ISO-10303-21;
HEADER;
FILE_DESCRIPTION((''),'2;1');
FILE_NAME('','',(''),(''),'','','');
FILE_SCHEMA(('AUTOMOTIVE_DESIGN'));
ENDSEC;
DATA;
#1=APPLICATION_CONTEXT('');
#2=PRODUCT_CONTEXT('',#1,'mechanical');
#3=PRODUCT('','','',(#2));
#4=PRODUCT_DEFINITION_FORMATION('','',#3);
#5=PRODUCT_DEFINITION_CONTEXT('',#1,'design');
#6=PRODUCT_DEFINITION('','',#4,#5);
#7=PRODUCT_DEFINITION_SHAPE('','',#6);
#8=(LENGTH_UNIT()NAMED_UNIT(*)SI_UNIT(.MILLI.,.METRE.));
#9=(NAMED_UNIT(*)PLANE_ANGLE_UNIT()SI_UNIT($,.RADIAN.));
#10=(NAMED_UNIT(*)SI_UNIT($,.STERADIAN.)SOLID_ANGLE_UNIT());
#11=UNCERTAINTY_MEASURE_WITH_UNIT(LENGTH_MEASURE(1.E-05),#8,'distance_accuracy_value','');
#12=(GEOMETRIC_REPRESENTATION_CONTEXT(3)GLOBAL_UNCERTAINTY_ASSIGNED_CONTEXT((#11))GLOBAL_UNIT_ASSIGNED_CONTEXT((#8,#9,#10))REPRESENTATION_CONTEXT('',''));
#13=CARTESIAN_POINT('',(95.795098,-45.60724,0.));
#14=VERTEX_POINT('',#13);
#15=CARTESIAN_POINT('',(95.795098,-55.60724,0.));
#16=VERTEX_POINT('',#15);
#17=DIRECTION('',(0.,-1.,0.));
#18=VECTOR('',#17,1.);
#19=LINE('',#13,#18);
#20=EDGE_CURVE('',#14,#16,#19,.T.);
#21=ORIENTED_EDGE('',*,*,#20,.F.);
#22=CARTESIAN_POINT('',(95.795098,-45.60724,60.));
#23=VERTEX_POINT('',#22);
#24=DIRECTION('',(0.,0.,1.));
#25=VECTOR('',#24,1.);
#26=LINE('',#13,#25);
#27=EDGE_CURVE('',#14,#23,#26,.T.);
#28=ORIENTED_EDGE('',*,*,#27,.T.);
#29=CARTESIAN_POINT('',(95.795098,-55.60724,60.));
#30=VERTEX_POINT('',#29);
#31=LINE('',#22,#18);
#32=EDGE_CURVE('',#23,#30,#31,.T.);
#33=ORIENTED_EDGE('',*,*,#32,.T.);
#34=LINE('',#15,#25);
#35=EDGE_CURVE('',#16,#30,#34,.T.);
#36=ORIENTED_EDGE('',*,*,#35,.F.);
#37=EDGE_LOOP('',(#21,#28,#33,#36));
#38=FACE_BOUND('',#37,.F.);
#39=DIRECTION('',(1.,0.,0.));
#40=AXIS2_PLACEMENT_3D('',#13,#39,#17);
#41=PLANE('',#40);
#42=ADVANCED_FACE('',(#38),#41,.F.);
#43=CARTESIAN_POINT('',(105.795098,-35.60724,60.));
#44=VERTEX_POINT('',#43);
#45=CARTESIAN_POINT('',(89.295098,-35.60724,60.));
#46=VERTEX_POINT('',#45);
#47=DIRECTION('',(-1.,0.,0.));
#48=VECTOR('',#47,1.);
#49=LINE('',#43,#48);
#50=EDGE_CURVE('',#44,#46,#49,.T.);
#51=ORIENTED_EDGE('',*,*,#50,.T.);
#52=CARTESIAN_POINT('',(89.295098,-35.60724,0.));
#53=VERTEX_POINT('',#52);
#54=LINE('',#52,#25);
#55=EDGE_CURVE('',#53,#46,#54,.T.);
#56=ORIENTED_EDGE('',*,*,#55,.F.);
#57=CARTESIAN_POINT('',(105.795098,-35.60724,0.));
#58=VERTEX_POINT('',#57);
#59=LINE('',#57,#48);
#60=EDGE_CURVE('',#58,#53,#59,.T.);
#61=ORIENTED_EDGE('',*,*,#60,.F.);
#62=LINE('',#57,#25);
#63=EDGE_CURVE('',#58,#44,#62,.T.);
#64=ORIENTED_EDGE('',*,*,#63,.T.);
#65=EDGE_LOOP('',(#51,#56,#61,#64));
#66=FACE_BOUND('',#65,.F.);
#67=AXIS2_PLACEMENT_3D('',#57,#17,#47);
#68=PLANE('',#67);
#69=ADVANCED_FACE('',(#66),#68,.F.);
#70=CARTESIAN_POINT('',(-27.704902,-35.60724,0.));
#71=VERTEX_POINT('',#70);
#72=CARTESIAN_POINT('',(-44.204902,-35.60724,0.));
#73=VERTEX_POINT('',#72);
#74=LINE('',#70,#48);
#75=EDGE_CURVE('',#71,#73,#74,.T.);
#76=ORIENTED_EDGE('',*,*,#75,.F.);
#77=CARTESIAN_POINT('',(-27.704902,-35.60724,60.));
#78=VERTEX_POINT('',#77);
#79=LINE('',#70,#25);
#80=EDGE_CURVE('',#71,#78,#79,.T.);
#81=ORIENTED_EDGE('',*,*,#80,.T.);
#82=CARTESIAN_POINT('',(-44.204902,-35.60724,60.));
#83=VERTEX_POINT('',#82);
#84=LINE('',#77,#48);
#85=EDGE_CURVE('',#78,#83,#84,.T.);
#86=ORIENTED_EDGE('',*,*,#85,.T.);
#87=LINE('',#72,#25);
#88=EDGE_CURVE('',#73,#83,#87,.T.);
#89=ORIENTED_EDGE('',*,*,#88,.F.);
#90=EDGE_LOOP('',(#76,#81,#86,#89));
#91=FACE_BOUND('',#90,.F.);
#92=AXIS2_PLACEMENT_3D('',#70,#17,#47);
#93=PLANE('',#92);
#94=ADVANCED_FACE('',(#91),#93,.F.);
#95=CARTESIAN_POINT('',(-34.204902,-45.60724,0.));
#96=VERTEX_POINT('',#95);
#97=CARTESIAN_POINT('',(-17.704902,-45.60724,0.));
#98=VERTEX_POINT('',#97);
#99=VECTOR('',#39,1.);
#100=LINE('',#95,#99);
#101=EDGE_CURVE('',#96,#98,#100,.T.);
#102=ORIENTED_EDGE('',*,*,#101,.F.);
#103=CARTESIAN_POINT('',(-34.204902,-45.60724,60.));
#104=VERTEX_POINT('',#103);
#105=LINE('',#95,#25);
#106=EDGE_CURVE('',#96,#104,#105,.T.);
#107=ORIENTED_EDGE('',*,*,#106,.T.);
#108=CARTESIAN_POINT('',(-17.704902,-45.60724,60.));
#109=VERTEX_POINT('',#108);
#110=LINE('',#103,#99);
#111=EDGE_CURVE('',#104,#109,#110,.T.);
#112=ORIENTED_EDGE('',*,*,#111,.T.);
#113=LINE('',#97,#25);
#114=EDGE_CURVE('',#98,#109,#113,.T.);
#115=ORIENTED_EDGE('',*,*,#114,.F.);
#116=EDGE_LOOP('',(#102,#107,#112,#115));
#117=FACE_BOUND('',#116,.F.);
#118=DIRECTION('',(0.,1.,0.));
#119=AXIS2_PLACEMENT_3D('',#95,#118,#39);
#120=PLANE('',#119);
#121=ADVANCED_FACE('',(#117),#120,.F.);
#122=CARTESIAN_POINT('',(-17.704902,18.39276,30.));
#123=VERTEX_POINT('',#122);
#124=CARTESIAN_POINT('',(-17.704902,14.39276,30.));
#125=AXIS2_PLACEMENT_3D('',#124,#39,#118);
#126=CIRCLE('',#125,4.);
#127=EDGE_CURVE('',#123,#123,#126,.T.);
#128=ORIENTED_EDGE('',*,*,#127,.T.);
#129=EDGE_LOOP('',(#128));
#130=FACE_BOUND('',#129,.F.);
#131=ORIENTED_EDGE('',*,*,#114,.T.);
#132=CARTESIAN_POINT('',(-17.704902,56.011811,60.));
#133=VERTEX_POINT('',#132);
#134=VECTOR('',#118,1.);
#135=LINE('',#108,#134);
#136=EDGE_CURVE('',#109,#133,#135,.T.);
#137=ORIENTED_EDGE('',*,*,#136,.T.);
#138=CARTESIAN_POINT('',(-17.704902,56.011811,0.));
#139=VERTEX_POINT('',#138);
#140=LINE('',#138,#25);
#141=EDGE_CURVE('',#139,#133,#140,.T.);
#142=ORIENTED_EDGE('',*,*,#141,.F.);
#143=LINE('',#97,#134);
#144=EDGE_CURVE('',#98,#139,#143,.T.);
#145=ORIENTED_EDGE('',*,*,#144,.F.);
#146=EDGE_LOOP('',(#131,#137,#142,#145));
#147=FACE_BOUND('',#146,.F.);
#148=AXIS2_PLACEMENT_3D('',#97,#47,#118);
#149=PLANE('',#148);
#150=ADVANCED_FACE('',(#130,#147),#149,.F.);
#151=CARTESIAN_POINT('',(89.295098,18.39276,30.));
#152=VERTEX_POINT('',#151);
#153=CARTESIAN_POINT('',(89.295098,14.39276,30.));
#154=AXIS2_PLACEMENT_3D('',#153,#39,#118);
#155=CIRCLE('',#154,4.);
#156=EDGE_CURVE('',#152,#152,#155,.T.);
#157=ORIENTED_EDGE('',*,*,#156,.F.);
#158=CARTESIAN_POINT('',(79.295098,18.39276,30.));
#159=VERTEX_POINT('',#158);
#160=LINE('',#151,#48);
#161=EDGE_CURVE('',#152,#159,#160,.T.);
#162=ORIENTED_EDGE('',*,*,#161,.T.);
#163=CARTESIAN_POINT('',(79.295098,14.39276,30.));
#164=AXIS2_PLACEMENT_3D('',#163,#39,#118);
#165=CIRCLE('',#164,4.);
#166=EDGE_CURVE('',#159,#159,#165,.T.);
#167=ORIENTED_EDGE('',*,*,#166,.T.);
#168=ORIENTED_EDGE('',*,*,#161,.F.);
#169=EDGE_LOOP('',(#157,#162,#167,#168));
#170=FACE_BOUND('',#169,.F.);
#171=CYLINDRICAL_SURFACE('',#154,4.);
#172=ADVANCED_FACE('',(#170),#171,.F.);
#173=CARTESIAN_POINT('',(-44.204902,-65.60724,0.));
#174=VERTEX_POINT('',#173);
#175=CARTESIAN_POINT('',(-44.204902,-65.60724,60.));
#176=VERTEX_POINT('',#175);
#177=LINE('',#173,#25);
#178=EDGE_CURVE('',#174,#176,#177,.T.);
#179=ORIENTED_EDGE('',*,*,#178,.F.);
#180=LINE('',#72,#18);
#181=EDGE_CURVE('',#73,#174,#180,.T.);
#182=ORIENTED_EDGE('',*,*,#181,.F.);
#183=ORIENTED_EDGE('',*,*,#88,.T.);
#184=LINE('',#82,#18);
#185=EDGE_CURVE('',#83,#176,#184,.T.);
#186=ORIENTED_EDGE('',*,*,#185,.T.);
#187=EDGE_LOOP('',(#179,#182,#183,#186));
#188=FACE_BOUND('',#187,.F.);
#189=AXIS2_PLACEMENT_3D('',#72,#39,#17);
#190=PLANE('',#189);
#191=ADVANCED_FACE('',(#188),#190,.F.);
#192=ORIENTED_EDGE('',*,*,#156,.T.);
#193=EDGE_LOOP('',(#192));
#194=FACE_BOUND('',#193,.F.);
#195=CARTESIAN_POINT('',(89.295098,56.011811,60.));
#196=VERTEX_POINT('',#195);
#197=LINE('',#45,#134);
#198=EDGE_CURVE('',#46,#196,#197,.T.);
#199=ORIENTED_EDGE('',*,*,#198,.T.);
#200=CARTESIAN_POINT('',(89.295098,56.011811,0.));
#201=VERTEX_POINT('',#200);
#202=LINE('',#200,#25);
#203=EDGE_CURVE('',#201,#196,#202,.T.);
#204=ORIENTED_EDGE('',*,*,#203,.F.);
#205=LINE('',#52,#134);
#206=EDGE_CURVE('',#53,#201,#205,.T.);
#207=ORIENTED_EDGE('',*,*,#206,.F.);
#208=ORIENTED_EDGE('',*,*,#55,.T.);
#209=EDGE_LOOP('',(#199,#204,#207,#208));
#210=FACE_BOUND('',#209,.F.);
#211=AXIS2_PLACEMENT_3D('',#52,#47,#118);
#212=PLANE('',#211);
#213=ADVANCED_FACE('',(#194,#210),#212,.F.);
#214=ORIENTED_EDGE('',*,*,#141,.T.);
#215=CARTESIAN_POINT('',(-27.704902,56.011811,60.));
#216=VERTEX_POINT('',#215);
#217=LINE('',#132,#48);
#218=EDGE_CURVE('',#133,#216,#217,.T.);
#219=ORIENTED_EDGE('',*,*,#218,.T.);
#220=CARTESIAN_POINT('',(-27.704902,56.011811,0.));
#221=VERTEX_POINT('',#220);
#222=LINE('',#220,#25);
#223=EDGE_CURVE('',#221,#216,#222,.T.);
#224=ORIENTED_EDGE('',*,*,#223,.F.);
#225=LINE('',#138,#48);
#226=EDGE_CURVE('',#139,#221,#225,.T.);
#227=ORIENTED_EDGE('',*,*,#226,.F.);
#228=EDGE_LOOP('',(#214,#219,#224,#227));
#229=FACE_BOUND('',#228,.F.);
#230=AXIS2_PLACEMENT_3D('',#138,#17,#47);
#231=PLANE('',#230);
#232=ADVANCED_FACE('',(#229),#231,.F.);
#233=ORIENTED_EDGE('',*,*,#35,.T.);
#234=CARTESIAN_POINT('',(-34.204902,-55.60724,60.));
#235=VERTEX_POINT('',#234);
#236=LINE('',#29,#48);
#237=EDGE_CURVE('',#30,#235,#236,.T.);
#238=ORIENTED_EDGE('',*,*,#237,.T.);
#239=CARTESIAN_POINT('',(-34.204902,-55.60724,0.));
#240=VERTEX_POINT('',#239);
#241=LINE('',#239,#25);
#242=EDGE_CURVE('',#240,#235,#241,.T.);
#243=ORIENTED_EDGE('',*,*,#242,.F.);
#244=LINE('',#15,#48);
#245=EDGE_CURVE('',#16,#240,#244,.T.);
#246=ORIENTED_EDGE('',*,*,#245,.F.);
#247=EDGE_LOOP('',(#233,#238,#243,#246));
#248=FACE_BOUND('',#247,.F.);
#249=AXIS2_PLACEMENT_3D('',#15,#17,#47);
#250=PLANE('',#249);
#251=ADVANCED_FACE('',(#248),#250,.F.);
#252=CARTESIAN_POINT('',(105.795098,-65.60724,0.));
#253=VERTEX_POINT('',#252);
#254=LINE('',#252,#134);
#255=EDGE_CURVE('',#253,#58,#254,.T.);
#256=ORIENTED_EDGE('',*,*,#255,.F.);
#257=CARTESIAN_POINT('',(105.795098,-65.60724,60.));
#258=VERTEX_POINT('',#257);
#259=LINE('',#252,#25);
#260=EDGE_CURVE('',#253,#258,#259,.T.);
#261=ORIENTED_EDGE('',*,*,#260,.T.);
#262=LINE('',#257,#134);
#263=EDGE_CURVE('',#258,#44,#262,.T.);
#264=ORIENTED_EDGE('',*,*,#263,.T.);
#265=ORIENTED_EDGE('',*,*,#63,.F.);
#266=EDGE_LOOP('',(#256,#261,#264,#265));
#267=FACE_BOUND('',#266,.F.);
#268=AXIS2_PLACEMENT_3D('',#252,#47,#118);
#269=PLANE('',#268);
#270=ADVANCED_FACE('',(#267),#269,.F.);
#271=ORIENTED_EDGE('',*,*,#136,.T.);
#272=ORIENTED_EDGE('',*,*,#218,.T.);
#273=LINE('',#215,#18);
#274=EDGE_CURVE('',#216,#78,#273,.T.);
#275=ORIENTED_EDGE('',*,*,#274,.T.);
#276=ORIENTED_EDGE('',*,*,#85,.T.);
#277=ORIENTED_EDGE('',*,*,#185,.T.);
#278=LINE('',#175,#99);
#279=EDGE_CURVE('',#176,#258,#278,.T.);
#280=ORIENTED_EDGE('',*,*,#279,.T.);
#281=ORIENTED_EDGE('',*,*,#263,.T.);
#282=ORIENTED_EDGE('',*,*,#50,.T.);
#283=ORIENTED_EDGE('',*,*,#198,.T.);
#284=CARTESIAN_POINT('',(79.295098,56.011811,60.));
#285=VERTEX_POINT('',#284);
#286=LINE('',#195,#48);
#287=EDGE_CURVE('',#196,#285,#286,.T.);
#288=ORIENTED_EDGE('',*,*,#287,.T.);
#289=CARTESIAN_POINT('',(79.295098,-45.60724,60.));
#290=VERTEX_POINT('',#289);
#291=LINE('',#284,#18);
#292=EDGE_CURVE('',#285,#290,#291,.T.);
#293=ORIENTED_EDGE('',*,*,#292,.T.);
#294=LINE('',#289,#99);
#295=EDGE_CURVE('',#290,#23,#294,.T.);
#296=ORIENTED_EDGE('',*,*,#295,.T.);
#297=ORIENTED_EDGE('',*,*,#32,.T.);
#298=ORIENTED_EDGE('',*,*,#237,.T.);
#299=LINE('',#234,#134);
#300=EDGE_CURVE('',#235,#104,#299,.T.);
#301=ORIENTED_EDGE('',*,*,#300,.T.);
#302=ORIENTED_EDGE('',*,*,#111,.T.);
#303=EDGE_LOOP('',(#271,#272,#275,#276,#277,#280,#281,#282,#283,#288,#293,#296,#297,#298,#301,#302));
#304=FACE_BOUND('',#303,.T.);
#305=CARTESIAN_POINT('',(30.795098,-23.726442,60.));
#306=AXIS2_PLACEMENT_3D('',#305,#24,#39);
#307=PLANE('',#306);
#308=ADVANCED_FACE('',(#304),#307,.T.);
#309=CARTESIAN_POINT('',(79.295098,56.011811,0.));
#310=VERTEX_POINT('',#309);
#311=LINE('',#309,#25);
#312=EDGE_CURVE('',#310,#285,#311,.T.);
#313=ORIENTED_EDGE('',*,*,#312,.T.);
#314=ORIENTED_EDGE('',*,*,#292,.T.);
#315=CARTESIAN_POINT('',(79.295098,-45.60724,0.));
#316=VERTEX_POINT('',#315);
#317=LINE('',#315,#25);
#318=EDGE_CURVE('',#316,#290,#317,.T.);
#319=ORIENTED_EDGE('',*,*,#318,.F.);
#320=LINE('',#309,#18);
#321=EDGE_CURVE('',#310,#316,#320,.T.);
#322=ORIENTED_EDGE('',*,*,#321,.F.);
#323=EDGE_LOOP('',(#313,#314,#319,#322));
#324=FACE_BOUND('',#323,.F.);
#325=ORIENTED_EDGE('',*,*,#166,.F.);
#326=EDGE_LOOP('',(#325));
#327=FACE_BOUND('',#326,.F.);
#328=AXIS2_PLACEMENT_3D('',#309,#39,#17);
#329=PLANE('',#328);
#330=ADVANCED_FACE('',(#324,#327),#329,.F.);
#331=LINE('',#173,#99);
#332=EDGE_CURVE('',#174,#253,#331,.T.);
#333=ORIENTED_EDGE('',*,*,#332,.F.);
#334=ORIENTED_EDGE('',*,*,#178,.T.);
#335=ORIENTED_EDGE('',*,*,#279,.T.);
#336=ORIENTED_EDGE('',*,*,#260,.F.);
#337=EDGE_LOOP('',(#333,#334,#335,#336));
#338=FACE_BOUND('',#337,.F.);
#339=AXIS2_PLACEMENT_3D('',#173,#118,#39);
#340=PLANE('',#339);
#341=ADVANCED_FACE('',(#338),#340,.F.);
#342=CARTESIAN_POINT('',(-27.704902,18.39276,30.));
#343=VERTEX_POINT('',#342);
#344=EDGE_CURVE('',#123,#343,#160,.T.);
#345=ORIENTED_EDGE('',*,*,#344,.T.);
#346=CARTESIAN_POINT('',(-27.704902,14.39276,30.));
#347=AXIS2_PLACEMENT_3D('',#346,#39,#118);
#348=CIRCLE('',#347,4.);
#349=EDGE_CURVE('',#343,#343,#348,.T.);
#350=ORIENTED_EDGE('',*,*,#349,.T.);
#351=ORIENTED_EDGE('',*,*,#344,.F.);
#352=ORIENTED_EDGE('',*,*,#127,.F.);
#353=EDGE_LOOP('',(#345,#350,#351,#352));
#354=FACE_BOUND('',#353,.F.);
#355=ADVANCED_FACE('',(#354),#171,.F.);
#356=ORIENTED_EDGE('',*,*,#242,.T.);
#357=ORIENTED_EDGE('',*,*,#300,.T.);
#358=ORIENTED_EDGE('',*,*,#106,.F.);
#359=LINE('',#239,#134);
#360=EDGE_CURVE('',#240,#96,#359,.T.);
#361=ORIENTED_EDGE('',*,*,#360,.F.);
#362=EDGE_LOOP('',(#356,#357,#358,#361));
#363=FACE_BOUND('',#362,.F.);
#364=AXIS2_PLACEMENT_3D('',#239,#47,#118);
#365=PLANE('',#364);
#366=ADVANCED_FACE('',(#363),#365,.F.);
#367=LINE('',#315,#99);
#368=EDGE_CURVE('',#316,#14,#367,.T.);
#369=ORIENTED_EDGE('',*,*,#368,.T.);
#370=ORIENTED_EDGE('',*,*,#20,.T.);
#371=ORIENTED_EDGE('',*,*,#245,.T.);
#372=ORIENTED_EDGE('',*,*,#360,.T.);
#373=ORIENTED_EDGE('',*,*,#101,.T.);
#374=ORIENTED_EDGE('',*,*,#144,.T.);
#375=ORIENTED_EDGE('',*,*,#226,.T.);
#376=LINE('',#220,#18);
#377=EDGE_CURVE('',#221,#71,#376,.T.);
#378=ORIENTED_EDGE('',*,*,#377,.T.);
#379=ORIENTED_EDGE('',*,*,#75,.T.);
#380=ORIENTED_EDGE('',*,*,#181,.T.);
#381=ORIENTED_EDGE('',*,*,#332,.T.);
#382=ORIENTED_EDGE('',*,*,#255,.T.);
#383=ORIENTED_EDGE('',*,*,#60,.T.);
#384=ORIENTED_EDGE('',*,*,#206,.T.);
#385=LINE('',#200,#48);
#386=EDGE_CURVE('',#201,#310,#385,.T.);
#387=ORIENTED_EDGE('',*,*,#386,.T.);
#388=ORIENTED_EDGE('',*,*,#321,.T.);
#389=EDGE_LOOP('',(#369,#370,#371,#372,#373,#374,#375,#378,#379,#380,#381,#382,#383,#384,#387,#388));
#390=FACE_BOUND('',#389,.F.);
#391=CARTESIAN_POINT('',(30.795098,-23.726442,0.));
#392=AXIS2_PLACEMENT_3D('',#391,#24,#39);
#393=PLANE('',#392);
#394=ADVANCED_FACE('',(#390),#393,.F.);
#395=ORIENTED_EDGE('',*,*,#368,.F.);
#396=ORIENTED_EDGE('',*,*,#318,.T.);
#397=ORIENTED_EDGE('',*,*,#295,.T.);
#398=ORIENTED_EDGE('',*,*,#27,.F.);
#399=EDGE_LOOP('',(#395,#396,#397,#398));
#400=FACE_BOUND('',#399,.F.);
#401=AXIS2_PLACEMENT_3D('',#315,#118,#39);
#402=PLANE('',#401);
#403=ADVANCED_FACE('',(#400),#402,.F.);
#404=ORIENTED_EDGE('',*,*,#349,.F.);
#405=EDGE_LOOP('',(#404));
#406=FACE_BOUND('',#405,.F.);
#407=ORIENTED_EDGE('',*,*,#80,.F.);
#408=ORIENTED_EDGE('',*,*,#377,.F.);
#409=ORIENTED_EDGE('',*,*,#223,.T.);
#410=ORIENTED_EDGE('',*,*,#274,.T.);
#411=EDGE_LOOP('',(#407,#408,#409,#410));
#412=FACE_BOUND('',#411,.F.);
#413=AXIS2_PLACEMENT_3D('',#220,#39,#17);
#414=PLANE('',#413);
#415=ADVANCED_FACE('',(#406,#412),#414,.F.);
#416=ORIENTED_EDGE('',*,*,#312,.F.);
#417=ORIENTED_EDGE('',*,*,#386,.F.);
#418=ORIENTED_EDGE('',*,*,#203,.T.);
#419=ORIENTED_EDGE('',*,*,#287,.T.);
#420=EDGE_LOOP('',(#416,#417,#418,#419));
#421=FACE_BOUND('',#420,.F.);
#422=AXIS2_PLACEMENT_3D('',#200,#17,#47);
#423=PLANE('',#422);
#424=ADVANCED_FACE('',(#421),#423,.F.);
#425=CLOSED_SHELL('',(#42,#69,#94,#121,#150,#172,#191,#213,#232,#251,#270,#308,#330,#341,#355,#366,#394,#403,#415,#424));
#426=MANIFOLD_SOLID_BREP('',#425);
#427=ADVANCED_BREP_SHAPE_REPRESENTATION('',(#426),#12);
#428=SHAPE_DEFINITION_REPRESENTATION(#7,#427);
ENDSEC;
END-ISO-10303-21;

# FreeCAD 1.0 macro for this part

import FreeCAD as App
import Part
import Sketcher

V = App.Vector
Q = App.Units.Quantity

doc = App.newDocument("Part")
body = doc.addObject("PartDesign::Body", "Body")

# Sketch on XY plane
sketch1 = doc.addObject("Sketcher::SketchObject", "Sketch")
body.addObject(sketch1)
sketch1.AttachmentSupport = (doc.XY_Plane, [""])
sketch1.MapMode = "FlatFace"
sketch1.addGeometry(Part.LineSegment(V(-44, -36, 0), V(-44, -66, 0)), False)
sketch1.addGeometry(Part.LineSegment(V(-44, -66, 0), V(106, -66, 0)), False)
sketch1.addGeometry(Part.LineSegment(V(106, -66, 0), V(106, -36, 0)), False)
sketch1.addGeometry(Part.LineSegment(V(106, -36, 0), V(89, -36, 0)), False)
sketch1.addGeometry(Part.LineSegment(V(89, -36, 0), V(89, 56, 0)), False)
sketch1.addGeometry(Part.LineSegment(V(89, 56, 0), V(79, 56, 0)), False)
sketch1.addGeometry(Part.LineSegment(V(79, 56, 0), V(79, -46, 0)), False)
sketch1.addGeometry(Part.LineSegment(V(79, -46, 0), V(96, -46, 0)), False)
sketch1.addGeometry(Part.LineSegment(V(96, -46, 0), V(96, -56, 0)), False)
sketch1.addGeometry(Part.LineSegment(V(96, -56, 0), V(-34, -56, 0)), False)
sketch1.addGeometry(Part.LineSegment(V(-34, -56, 0), V(-34, -46, 0)), False)
sketch1.addGeometry(Part.LineSegment(V(-34, -46, 0), V(-18, -46, 0)), False)
sketch1.addGeometry(Part.LineSegment(V(-18, -46, 0), V(-18, 56, 0)), False)
sketch1.addGeometry(Part.LineSegment(V(-18, 56, 0), V(-28, 56, 0)), False)
sketch1.addGeometry(Part.LineSegment(V(-28, 56, 0), V(-28, -36, 0)), False)
sketch1.addGeometry(Part.LineSegment(V(-28, -36, 0), V(-44, -36, 0)), False)
sketch1.addConstraint(Sketcher.Constraint("Coincident", 0, 2, 1, 1))
sketch1.addConstraint(Sketcher.Constraint("Coincident", 1, 2, 2, 1))
sketch1.addConstraint(Sketcher.Constraint("Coincident", 2, 2, 3, 1))
sketch1.addConstraint(Sketcher.Constraint("Coincident", 3, 2, 4, 1))
sketch1.addConstraint(Sketcher.Constraint("Coincident", 4, 2, 5, 1))
sketch1.addConstraint(Sketcher.Constraint("Coincident", 5, 2, 6, 1))
sketch1.addConstraint(Sketcher.Constraint("Coincident", 6, 2, 7, 1))
sketch1.addConstraint(Sketcher.Constraint("Coincident", 7, 2, 8, 1))
sketch1.addConstraint(Sketcher.Constraint("Coincident", 8, 2, 9, 1))
sketch1.addConstraint(Sketcher.Constraint("Coincident", 9, 2, 10, 1))
sketch1.addConstraint(Sketcher.Constraint("Coincident", 10, 2, 11, 1))
sketch1.addConstraint(Sketcher.Constraint("Coincident", 11, 2, 12, 1))
sketch1.addConstraint(Sketcher.Constraint("Coincident", 12, 2, 13, 1))
sketch1.addConstraint(Sketcher.Constraint("Coincident", 13, 2, 14, 1))
sketch1.addConstraint(Sketcher.Constraint("Coincident", 14, 2, 15, 1))
sketch1.addConstraint(Sketcher.Constraint("Coincident", 15, 2, 0, 1))
sketch1.addConstraint(Sketcher.Constraint("Vertical", 0))
sketch1.addConstraint(Sketcher.Constraint("Horizontal", 1))
sketch1.addConstraint(Sketcher.Constraint("Vertical", 2))
sketch1.addConstraint(Sketcher.Constraint("Horizontal", 3))
sketch1.addConstraint(Sketcher.Constraint("Vertical", 4))
sketch1.addConstraint(Sketcher.Constraint("Horizontal", 5))
sketch1.addConstraint(Sketcher.Constraint("Vertical", 6))
sketch1.addConstraint(Sketcher.Constraint("Horizontal", 7))
sketch1.addConstraint(Sketcher.Constraint("Vertical", 8))
sketch1.addConstraint(Sketcher.Constraint("Horizontal", 9))
sketch1.addConstraint(Sketcher.Constraint("Vertical", 10))
sketch1.addConstraint(Sketcher.Constraint("Horizontal", 11))
sketch1.addConstraint(Sketcher.Constraint("Vertical", 12))
sketch1.addConstraint(Sketcher.Constraint("Horizontal", 13))
sketch1.addConstraint(Sketcher.Constraint("Vertical", 14))
sketch1.addConstraint(Sketcher.Constraint("Horizontal", 15))
sketch1.addConstraint(Sketcher.Constraint("Horizontal", 7, 2, 10, 2))
sketch1.addConstraint(Sketcher.Constraint("Horizontal", 5, 2, 12, 2))
sketch1.addConstraint(Sketcher.Constraint("Horizontal", 3, 2, 14, 2))
sketch1.addConstraint(Sketcher.Constraint("Equal", 3, 7))
sketch1.addConstraint(Sketcher.Constraint("Equal", 7, 11))
sketch1.addConstraint(Sketcher.Constraint("Equal", 5, 13))
sketch1.addConstraint(Sketcher.Constraint("Equal", 11, 15))
sketch1.addConstraint(Sketcher.Constraint("Equal", 13, 8))
sketch1.addConstraint(Sketcher.Constraint("DistanceX", 1, 1, 1, 2, Q("150 mm")))
sketch1.addConstraint(Sketcher.Constraint("DistanceX", 5, 2, 5, 1, Q("10 mm")))
sketch1.addConstraint(Sketcher.Constraint("DistanceY", 0, 2, 0, 1, Q("30 mm")))
sketch1.addConstraint(Sketcher.Constraint("DistanceX", 3, 2, 3, 1, Q("16.5 mm")))
sketch1.addConstraint(Sketcher.Constraint("DistanceY", 6, 2, 3, 2, Q("10 mm")))
sketch1.addConstraint(Sketcher.Constraint("DistanceY", 4, 1, 4, 2, Q("91.619051 mm")))
sketch1.addConstraint(Sketcher.Constraint("DistanceX", 0, 2, -1, 1, Q("44.204902 mm")))
sketch1.addConstraint(Sketcher.Constraint("DistanceY", 0, 2, -1, 1, Q("65.60724 mm")))
pad1 = doc.addObject("PartDesign::Pad", "Pad")
body.addObject(pad1)
pad1.Profile = sketch1
pad1.Length = 60

# Sketch on YZ plane
sketch2 = doc.addObject("Sketcher::SketchObject", "Sketch001")
body.addObject(sketch2)
sketch2.AttachmentSupport = (doc.YZ_Plane, [""])
sketch2.MapMode = "FlatFace"
sketch2.AttachmentOffset = App.Placement(V(0, 0, 89.295098), App.Rotation())
sketch2.addGeometry(Part.Circle(V(14.4, 30, 0), V(0, 0, 1), 4), False)
sketch2.addConstraint(Sketcher.Constraint("Diameter", 0, Q("8 mm")))
sketch2.addConstraint(Sketcher.Constraint("DistanceY", -1, 1, 0, 3, Q("30 mm")))
sketch2.addConstraint(Sketcher.Constraint("DistanceX", -1, 1, 0, 3, Q("14.39276 mm")))
pocket1 = doc.addObject("PartDesign::Pocket", "Pocket")
body.addObject(pocket1)
pocket1.Profile = sketch2
pocket1.Length = 154

doc.recompute()
